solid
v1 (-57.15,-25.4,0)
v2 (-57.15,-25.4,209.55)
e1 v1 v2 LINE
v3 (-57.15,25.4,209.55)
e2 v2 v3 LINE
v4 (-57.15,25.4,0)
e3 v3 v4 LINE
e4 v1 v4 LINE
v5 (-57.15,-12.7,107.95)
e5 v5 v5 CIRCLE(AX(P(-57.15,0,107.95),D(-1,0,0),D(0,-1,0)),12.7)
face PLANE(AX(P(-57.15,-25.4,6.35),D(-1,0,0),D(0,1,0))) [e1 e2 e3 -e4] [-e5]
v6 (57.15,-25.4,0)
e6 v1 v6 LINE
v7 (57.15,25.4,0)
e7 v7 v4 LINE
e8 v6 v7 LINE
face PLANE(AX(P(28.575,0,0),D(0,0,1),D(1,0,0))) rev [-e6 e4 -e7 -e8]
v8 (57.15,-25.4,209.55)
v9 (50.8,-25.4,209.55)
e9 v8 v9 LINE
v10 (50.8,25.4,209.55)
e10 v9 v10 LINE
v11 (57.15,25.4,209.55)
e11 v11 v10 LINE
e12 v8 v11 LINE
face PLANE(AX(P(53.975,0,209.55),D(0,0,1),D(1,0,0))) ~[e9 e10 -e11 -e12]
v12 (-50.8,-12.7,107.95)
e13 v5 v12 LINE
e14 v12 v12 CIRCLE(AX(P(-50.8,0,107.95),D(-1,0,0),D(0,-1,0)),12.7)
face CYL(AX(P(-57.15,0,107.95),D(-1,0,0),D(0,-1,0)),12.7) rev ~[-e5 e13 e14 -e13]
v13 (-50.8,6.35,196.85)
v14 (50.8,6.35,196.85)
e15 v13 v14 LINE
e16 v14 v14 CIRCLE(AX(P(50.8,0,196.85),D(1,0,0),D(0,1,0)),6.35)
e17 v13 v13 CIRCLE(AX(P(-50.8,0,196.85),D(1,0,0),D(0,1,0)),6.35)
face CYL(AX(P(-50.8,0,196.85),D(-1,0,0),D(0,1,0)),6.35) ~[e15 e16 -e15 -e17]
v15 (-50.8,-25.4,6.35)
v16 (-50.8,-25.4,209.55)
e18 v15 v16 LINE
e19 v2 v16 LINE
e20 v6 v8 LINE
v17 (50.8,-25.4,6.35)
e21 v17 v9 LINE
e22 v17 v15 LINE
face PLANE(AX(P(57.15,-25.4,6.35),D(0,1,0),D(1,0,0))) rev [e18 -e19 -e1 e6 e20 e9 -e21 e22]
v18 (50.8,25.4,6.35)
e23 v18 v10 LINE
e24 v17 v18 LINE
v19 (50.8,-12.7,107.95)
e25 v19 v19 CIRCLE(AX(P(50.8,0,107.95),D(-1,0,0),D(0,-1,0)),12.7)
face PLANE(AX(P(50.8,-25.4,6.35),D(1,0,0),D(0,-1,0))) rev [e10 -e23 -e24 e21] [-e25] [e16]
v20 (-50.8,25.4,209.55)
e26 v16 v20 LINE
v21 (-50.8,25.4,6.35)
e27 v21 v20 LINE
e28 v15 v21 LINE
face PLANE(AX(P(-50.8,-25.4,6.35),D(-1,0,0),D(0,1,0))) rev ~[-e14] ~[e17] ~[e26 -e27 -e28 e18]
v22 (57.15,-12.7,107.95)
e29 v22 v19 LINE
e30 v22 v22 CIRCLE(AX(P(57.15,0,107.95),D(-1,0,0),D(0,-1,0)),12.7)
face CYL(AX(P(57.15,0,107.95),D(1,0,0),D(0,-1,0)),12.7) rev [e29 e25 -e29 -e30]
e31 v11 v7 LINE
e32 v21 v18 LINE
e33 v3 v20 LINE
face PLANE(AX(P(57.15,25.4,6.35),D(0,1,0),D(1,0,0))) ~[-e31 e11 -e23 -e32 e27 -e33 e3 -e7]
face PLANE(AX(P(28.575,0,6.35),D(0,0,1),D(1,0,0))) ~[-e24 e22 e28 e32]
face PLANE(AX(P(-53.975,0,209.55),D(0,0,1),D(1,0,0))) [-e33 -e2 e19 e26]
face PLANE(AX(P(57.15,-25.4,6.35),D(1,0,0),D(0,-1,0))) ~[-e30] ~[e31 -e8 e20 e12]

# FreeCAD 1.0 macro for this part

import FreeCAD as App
import Part
import Sketcher

V = App.Vector
Q = App.Units.Quantity


def add_polygon(sketch, points):
    """Adds a closed chain of lines whose ends are joined by coincident constraints."""
    first, n = sketch.GeometryCount, len(points)
    for a, b in zip(points, points[1:] + points[:1]):
        sketch.addGeometry(Part.LineSegment(App.Vector(*a, 0), App.Vector(*b, 0)), False)
    for i in range(n):
        sketch.addConstraint(Sketcher.Constraint("Coincident", first + i, 2, first + (i + 1) % n, 1))

doc = App.newDocument("Part")
body = doc.addObject("PartDesign::Body", "Body")

# Sketch on XY plane
sketch1 = body.newObject("Sketcher::SketchObject", "Sketch")
sketch1.AttachmentSupport = (doc.getObject("XY_Plane"), [""])
sketch1.MapMode = "FlatFace"
add_polygon(sketch1, [(-57.15, 25.4), (-57.15, -25.4), (0, -25.4), (0, 25.4)])  # lines 0-3
sketch1.addConstraint(Sketcher.Constraint("Vertical", 0))
sketch1.addConstraint(Sketcher.Constraint("Horizontal", 1))
sketch1.addConstraint(Sketcher.Constraint("Vertical", 2))
sketch1.addConstraint(Sketcher.Constraint("Horizontal", 3))
sketch1.addConstraint(Sketcher.Constraint("Symmetric", 1, 2, 2, 2, -1, 1))
sketch1.addConstraint(Sketcher.Constraint("DistanceY", 0, 2, 0, 1, Q("2 in")))
sketch1.addConstraint(Sketcher.Constraint("DistanceX", 1, 1, 1, 2, Q("2.25 in")))
pad1 = body.newObject("PartDesign::Pad", "Pad")
pad1.Profile = sketch1
pad1.Length = Q("0.25 in")

# Sketch on XY plane
sketch2 = body.newObject("Sketcher::SketchObject", "Sketch001")
sketch2.AttachmentSupport = (doc.getObject("XY_Plane"), [""])
sketch2.MapMode = "FlatFace"
sketch2.AttachmentOffset = App.Placement(V(0, 0, 0.25 * 25.4), App.Rotation())
add_polygon(sketch2, [(-57.15, 25.4), (-57.15, -25.4), (-50.8, -25.4), (-50.8, 25.4)])  # lines 0-3
sketch2.addConstraint(Sketcher.Constraint("Vertical", 0))
sketch2.addConstraint(Sketcher.Constraint("Horizontal", 1))
sketch2.addConstraint(Sketcher.Constraint("Vertical", 2))
sketch2.addConstraint(Sketcher.Constraint("Horizontal", 3))
sketch2.addConstraint(Sketcher.Constraint("DistanceY", 0, 2, 0, 1, Q("2 in")))
sketch2.addConstraint(Sketcher.Constraint("DistanceY", 0, 2, -1, 1, Q("1 in")))
sketch2.addConstraint(Sketcher.Constraint("DistanceX", 1, 2, -1, 1, Q("2 in")))
sketch2.addConstraint(Sketcher.Constraint("DistanceX", 1, 1, 1, 2, Q("0.25 in")))
pad2 = body.newObject("PartDesign::Pad", "Pad001")
pad2.Profile = sketch2
pad2.Length = Q("8 in")

# Sketch on YZ plane
sketch3 = body.newObject("Sketcher::SketchObject", "Sketch002")
sketch3.AttachmentSupport = (doc.getObject("YZ_Plane"), [""])
sketch3.MapMode = "FlatFace"
sketch3.AttachmentOffset = App.Placement(V(0, 0, -2.25 * 25.4), App.Rotation())
sketch3.addGeometry(Part.Circle(V(0, 107.95, 0), V(0, 0, 1), 12.7), False)
sketch3.addConstraint(Sketcher.Constraint("PointOnObject", 0, 3, -2))
sketch3.addConstraint(Sketcher.Constraint("Diameter", 0, Q("1 in")))
sketch3.addConstraint(Sketcher.Constraint("DistanceY", -1, 1, 0, 3, Q("4.25 in")))
pocket1 = body.newObject("PartDesign::Pocket", "Pocket")
pocket1.Profile = sketch3
pocket1.Type = "ThroughAll"
pocket1.Reversed = True
body2 = doc.addObject("PartDesign::Body", "Body001")
doc.recompute()

body2.BaseFeature = body
doc.recompute()

mirroring = doc.addObject("Part::Mirroring", "Mirroring")
mirroring.Source = body
mirroring.Base = V(0, 0, 0)
mirroring.Normal = V(1, 0, 0)
body3 = doc.addObject("PartDesign::Body", "Body002")
body3.BaseFeature = mirroring
boolean = body2.newObject("PartDesign::Boolean", "Boolean")
boolean.Type = "Fuse"
boolean.addObjects([body3])
doc.recompute()

# Sketch on YZ plane
sketch4 = body2.newObject("Sketcher::SketchObject", "Sketch003")
sketch4.AttachmentSupport = (doc.getObject("YZ_Plane001"), [""])
sketch4.MapMode = "FlatFace"
sketch4.AttachmentOffset = App.Placement(V(0, 0, -2 * 25.4), App.Rotation())
sketch4.addGeometry(Part.Circle(V(0, 196.85, 0), V(0, 0, 1), 6.35), False)
sketch4.addConstraint(Sketcher.Constraint("PointOnObject", 0, 3, -2))
sketch4.addConstraint(Sketcher.Constraint("Diameter", 0, Q("0.5 in")))
sketch4.addConstraint(Sketcher.Constraint("DistanceY", -1, 1, 0, 3, Q("7.75 in")))
pad3 = body2.newObject("PartDesign::Pad", "Pad002")
pad3.Profile = sketch4
pad3.Type = "UpToLast"
mirroring.Visibility = False

doc.recompute()
